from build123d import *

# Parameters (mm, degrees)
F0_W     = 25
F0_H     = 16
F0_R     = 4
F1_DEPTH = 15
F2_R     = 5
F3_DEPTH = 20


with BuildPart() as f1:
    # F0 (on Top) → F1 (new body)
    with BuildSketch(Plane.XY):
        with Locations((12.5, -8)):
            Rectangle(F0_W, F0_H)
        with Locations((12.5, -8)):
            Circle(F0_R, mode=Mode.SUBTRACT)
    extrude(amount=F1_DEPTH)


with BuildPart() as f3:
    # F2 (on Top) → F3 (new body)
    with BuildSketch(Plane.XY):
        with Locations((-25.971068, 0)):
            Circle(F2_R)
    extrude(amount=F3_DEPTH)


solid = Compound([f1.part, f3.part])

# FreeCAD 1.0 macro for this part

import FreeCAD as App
import Part
import Sketcher

V = App.Vector
Q = App.Units.Quantity


def add_polygon(sketch, points):
    """Adds a closed chain of lines whose ends are joined by coincident constraints."""
    first, n = sketch.GeometryCount, len(points)
    for a, b in zip(points, points[1:] + points[:1]):
        sketch.addGeometry(Part.LineSegment(App.Vector(*a, 0), App.Vector(*b, 0)), False)
    for i in range(n):
        sketch.addConstraint(Sketcher.Constraint("Coincident", first + i, 2, first + (i + 1) % n, 1))

doc = App.newDocument("Part")
body = doc.addObject("PartDesign::Body", "Body")

sketch1 = body.newObject("Sketcher::SketchObject", "Sketch")
sketch1.AttachmentSupport = (doc.getObject("XY_Plane"), [""])
sketch1.MapMode = "FlatFace"
add_polygon(sketch1, [(0, 0), (0, -16), (25, -16), (25, 0)])
sketch1.addGeometry(Part.Circle(V(12.5, -8, 0), V(0, 0, 1), 4), False)
sketch1.addConstraint(Sketcher.Constraint("Vertical", 0))
sketch1.addConstraint(Sketcher.Constraint("Horizontal", 1))
sketch1.addConstraint(Sketcher.Constraint("Vertical", 2))
sketch1.addConstraint(Sketcher.Constraint("Horizontal", 3))
sketch1.addConstraint(Sketcher.Constraint("Coincident", 3, 2, -1, 1))
sketch1.addConstraint(Sketcher.Constraint("Diameter", 4, Q("8 mm")))
sketch1.addConstraint(Sketcher.Constraint("DistanceX", 1, 1, 1, 2, Q("25 mm")))
sketch1.addConstraint(Sketcher.Constraint("DistanceY", 0, 2, 0, 1, Q("16 mm")))
sketch1.addConstraint(Sketcher.Constraint("DistanceY", 4, 3, -1, 1, Q("8 mm")))
sketch1.addConstraint(Sketcher.Constraint("DistanceX", -1, 1, 4, 3, Q("12.5 mm")))
pad1 = body.newObject("PartDesign::Pad", "Pad")
pad1.Profile = sketch1
pad1.Length = 15
body2 = doc.addObject("PartDesign::Body", "Body001")

sketch2 = body2.newObject("Sketcher::SketchObject", "Sketch001")
sketch2.AttachmentSupport = (doc.getObject("XY_Plane001"), [""])
sketch2.MapMode = "FlatFace"
sketch2.addGeometry(Part.Circle(V(-26, 0, 0), V(0, 0, 1), 5), False)
sketch2.addConstraint(Sketcher.Constraint("PointOnObject", 0, 3, -1))
sketch2.addConstraint(Sketcher.Constraint("Diameter", 0, Q("10 mm")))
sketch2.addConstraint(Sketcher.Constraint("DistanceX", 0, 3, -1, 1, Q("25.971068 mm")))
pad2 = body2.newObject("PartDesign::Pad", "Pad001")
pad2.Profile = sketch2
pad2.Length = 20

doc.recompute()
